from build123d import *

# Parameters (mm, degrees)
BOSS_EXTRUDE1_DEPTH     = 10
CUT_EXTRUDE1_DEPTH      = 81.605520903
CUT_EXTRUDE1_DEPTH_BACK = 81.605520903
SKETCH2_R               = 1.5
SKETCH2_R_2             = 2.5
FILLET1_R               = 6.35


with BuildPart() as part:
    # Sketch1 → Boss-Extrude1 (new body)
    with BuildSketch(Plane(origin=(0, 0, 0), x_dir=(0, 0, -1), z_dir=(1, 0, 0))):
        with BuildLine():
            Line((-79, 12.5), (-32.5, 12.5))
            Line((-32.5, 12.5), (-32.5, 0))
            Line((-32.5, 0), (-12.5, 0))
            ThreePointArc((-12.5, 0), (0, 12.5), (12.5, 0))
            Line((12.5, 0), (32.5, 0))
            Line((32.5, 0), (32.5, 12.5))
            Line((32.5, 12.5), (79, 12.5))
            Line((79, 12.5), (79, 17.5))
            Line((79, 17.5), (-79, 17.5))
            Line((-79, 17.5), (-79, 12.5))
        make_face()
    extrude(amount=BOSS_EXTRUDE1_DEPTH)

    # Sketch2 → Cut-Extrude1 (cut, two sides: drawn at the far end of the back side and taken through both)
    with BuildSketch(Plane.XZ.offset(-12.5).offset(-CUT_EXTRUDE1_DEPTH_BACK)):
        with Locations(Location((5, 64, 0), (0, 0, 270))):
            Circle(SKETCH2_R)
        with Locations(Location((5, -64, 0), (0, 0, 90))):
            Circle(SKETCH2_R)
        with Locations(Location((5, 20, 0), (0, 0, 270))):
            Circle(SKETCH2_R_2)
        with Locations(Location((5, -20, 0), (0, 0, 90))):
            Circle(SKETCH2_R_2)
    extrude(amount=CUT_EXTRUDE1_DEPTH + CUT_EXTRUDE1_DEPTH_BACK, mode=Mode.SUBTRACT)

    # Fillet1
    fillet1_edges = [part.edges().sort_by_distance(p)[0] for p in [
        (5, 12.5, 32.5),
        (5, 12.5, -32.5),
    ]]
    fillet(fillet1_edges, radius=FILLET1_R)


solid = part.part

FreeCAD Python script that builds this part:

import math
import FreeCAD as App
import Part
import Sketcher
from FreeCAD import Vector


def edges_at(feature, points):
    """Names of the edges that pass closest to the given points."""
    edges = feature.Shape.Edges
    near = lambda p: min(range(len(edges)), key=lambda i: edges[i].distToShape(Part.Vertex(*p))[0])
    return sorted({f"Edge{near(p) + 1}" for p in points})

doc = App.newDocument("Part")
body = doc.addObject("PartDesign::Body", "Body")

sketch1 = doc.addObject("Sketcher::SketchObject", "Sketch")
body.addObject(sketch1)
sketch1.AttachmentSupport = (doc.YZ_Plane, [""])
sketch1.MapMode = "FlatFace"
sketch1.addGeometry([
    Part.LineSegment(Vector(12.5, 79, 0), Vector(12.5, 32.5, 0)),
    Part.LineSegment(Vector(12.5, 32.5, 0), Vector(0, 32.5, 0)),
    Part.LineSegment(Vector(0, 32.5, 0), Vector(0, 12.5, 0)),
    Part.ArcOfCircle(Part.Circle(Vector(0, 0, 0), Vector(0, 0, 1), 12.5), math.radians(-90), math.radians(90)),
    Part.LineSegment(Vector(0, -12.5, 0), Vector(0, -32.5, 0)),
    Part.LineSegment(Vector(0, -32.5, 0), Vector(12.5, -32.5, 0)),
    Part.LineSegment(Vector(12.5, -32.5, 0), Vector(12.5, -79, 0)),
    Part.LineSegment(Vector(12.5, -79, 0), Vector(17.5, -79, 0)),
    Part.LineSegment(Vector(17.5, -79, 0), Vector(17.5, 79, 0)),
    Part.LineSegment(Vector(17.5, 79, 0), Vector(12.5, 79, 0)),
], False)
sketch1.addConstraint([
    Sketcher.Constraint("Coincident", 0, 2, 1, 1),
    Sketcher.Constraint("Coincident", 1, 2, 2, 1),
    Sketcher.Constraint("Coincident", 2, 2, 3, 2),
    Sketcher.Constraint("Coincident", 3, 1, 4, 1),
    Sketcher.Constraint("Coincident", 4, 2, 5, 1),
    Sketcher.Constraint("Coincident", 5, 2, 6, 1),
    Sketcher.Constraint("Coincident", 6, 2, 7, 1),
    Sketcher.Constraint("Coincident", 7, 2, 8, 1),
    Sketcher.Constraint("Coincident", 8, 2, 9, 1),
    Sketcher.Constraint("Coincident", 9, 2, 0, 1),
    Sketcher.Constraint("Vertical", 0),
    Sketcher.Constraint("Horizontal", 1),
    Sketcher.Constraint("Vertical", 2),
    Sketcher.Constraint("Vertical", 4),
    Sketcher.Constraint("Horizontal", 5),
    Sketcher.Constraint("Vertical", 6),
    Sketcher.Constraint("Horizontal", 7),
    Sketcher.Constraint("Vertical", 8),
    Sketcher.Constraint("Horizontal", 9),
    Sketcher.Constraint("Coincident", 3, 3, -1, 1),
    Sketcher.Constraint("Symmetric", 1, 2, 4, 2, -1, 1),
    Sketcher.Constraint("Symmetric", 6, 2, 9, 2, -1),
    Sketcher.Constraint("PointOnObject", 1, 2, -2),
    Sketcher.Constraint("Radius", 3, 12.5),
    Sketcher.Constraint("DistanceX", 7, 1, 7, 2, 5.0),
    Sketcher.Constraint("DistanceY", 2, 2, 2, 1, 20.0),
    Sketcher.Constraint("DistanceY", 8, 1, 8, 2, 158.0),
    Sketcher.Constraint("DistanceX", 1, 2, 1, 1, 12.5),
])
pad1 = doc.addObject("PartDesign::Pad", "Pad")
body.addObject(pad1)
pad1.Profile = sketch1
pad1.Length = 10

sketch2 = doc.addObject("Sketcher::SketchObject", "Sketch001")
body.addObject(sketch2)
sketch2.AttachmentSupport = (doc.XZ_Plane, [""])
sketch2.MapMode = "FlatFace"
sketch2.AttachmentOffset = App.Placement(Vector(0, 0, -12.5), App.Rotation())
sketch2.addGeometry([
    Part.Circle(Vector(5, 64, 0), Vector(0, 0, 1), 1.5),
    Part.Circle(Vector(5, -64, 0), Vector(0, 0, 1), 1.5),
    Part.Circle(Vector(5, 20, 0), Vector(0, 0, 1), 2.5),
    Part.Circle(Vector(5, -20, 0), Vector(0, 0, 1), 2.5),
], False)
sketch2.addConstraint([
    Sketcher.Constraint("Equal", 0, 1),
    Sketcher.Constraint("Equal", 2, 3),
    Sketcher.Constraint("Symmetric", 0, 3, 1, 3, -1),
    Sketcher.Constraint("Symmetric", 2, 3, 3, 3, -1),
    Sketcher.Constraint("Vertical", 1, 3, 2, 3),
    Sketcher.Constraint("Diameter", 0, 3.0),
    Sketcher.Constraint("Diameter", 2, 5.0),
    Sketcher.Constraint("DistanceX", -1, 1, 0, 3, 5.0),
    Sketcher.Constraint("DistanceY", -1, 1, 0, 3, 64.0),
    Sketcher.Constraint("DistanceY", -1, 1, 2, 3, 20.0),
])
pocket1 = doc.addObject("PartDesign::Pocket", "Pocket")
body.addObject(pocket1)
pocket1.Profile = sketch2
pocket1.Type = "ThroughAll"
pocket1.Midplane = True
doc.recompute()

fillet = doc.addObject("PartDesign::Fillet", "Fillet")
body.addObject(fillet)
fillet.Base = (pocket1, edges_at(pocket1, [(5, 12.5, 32.5), (5, 12.5, -32.5)]))
fillet.Radius = 6.35

doc.recompute()
